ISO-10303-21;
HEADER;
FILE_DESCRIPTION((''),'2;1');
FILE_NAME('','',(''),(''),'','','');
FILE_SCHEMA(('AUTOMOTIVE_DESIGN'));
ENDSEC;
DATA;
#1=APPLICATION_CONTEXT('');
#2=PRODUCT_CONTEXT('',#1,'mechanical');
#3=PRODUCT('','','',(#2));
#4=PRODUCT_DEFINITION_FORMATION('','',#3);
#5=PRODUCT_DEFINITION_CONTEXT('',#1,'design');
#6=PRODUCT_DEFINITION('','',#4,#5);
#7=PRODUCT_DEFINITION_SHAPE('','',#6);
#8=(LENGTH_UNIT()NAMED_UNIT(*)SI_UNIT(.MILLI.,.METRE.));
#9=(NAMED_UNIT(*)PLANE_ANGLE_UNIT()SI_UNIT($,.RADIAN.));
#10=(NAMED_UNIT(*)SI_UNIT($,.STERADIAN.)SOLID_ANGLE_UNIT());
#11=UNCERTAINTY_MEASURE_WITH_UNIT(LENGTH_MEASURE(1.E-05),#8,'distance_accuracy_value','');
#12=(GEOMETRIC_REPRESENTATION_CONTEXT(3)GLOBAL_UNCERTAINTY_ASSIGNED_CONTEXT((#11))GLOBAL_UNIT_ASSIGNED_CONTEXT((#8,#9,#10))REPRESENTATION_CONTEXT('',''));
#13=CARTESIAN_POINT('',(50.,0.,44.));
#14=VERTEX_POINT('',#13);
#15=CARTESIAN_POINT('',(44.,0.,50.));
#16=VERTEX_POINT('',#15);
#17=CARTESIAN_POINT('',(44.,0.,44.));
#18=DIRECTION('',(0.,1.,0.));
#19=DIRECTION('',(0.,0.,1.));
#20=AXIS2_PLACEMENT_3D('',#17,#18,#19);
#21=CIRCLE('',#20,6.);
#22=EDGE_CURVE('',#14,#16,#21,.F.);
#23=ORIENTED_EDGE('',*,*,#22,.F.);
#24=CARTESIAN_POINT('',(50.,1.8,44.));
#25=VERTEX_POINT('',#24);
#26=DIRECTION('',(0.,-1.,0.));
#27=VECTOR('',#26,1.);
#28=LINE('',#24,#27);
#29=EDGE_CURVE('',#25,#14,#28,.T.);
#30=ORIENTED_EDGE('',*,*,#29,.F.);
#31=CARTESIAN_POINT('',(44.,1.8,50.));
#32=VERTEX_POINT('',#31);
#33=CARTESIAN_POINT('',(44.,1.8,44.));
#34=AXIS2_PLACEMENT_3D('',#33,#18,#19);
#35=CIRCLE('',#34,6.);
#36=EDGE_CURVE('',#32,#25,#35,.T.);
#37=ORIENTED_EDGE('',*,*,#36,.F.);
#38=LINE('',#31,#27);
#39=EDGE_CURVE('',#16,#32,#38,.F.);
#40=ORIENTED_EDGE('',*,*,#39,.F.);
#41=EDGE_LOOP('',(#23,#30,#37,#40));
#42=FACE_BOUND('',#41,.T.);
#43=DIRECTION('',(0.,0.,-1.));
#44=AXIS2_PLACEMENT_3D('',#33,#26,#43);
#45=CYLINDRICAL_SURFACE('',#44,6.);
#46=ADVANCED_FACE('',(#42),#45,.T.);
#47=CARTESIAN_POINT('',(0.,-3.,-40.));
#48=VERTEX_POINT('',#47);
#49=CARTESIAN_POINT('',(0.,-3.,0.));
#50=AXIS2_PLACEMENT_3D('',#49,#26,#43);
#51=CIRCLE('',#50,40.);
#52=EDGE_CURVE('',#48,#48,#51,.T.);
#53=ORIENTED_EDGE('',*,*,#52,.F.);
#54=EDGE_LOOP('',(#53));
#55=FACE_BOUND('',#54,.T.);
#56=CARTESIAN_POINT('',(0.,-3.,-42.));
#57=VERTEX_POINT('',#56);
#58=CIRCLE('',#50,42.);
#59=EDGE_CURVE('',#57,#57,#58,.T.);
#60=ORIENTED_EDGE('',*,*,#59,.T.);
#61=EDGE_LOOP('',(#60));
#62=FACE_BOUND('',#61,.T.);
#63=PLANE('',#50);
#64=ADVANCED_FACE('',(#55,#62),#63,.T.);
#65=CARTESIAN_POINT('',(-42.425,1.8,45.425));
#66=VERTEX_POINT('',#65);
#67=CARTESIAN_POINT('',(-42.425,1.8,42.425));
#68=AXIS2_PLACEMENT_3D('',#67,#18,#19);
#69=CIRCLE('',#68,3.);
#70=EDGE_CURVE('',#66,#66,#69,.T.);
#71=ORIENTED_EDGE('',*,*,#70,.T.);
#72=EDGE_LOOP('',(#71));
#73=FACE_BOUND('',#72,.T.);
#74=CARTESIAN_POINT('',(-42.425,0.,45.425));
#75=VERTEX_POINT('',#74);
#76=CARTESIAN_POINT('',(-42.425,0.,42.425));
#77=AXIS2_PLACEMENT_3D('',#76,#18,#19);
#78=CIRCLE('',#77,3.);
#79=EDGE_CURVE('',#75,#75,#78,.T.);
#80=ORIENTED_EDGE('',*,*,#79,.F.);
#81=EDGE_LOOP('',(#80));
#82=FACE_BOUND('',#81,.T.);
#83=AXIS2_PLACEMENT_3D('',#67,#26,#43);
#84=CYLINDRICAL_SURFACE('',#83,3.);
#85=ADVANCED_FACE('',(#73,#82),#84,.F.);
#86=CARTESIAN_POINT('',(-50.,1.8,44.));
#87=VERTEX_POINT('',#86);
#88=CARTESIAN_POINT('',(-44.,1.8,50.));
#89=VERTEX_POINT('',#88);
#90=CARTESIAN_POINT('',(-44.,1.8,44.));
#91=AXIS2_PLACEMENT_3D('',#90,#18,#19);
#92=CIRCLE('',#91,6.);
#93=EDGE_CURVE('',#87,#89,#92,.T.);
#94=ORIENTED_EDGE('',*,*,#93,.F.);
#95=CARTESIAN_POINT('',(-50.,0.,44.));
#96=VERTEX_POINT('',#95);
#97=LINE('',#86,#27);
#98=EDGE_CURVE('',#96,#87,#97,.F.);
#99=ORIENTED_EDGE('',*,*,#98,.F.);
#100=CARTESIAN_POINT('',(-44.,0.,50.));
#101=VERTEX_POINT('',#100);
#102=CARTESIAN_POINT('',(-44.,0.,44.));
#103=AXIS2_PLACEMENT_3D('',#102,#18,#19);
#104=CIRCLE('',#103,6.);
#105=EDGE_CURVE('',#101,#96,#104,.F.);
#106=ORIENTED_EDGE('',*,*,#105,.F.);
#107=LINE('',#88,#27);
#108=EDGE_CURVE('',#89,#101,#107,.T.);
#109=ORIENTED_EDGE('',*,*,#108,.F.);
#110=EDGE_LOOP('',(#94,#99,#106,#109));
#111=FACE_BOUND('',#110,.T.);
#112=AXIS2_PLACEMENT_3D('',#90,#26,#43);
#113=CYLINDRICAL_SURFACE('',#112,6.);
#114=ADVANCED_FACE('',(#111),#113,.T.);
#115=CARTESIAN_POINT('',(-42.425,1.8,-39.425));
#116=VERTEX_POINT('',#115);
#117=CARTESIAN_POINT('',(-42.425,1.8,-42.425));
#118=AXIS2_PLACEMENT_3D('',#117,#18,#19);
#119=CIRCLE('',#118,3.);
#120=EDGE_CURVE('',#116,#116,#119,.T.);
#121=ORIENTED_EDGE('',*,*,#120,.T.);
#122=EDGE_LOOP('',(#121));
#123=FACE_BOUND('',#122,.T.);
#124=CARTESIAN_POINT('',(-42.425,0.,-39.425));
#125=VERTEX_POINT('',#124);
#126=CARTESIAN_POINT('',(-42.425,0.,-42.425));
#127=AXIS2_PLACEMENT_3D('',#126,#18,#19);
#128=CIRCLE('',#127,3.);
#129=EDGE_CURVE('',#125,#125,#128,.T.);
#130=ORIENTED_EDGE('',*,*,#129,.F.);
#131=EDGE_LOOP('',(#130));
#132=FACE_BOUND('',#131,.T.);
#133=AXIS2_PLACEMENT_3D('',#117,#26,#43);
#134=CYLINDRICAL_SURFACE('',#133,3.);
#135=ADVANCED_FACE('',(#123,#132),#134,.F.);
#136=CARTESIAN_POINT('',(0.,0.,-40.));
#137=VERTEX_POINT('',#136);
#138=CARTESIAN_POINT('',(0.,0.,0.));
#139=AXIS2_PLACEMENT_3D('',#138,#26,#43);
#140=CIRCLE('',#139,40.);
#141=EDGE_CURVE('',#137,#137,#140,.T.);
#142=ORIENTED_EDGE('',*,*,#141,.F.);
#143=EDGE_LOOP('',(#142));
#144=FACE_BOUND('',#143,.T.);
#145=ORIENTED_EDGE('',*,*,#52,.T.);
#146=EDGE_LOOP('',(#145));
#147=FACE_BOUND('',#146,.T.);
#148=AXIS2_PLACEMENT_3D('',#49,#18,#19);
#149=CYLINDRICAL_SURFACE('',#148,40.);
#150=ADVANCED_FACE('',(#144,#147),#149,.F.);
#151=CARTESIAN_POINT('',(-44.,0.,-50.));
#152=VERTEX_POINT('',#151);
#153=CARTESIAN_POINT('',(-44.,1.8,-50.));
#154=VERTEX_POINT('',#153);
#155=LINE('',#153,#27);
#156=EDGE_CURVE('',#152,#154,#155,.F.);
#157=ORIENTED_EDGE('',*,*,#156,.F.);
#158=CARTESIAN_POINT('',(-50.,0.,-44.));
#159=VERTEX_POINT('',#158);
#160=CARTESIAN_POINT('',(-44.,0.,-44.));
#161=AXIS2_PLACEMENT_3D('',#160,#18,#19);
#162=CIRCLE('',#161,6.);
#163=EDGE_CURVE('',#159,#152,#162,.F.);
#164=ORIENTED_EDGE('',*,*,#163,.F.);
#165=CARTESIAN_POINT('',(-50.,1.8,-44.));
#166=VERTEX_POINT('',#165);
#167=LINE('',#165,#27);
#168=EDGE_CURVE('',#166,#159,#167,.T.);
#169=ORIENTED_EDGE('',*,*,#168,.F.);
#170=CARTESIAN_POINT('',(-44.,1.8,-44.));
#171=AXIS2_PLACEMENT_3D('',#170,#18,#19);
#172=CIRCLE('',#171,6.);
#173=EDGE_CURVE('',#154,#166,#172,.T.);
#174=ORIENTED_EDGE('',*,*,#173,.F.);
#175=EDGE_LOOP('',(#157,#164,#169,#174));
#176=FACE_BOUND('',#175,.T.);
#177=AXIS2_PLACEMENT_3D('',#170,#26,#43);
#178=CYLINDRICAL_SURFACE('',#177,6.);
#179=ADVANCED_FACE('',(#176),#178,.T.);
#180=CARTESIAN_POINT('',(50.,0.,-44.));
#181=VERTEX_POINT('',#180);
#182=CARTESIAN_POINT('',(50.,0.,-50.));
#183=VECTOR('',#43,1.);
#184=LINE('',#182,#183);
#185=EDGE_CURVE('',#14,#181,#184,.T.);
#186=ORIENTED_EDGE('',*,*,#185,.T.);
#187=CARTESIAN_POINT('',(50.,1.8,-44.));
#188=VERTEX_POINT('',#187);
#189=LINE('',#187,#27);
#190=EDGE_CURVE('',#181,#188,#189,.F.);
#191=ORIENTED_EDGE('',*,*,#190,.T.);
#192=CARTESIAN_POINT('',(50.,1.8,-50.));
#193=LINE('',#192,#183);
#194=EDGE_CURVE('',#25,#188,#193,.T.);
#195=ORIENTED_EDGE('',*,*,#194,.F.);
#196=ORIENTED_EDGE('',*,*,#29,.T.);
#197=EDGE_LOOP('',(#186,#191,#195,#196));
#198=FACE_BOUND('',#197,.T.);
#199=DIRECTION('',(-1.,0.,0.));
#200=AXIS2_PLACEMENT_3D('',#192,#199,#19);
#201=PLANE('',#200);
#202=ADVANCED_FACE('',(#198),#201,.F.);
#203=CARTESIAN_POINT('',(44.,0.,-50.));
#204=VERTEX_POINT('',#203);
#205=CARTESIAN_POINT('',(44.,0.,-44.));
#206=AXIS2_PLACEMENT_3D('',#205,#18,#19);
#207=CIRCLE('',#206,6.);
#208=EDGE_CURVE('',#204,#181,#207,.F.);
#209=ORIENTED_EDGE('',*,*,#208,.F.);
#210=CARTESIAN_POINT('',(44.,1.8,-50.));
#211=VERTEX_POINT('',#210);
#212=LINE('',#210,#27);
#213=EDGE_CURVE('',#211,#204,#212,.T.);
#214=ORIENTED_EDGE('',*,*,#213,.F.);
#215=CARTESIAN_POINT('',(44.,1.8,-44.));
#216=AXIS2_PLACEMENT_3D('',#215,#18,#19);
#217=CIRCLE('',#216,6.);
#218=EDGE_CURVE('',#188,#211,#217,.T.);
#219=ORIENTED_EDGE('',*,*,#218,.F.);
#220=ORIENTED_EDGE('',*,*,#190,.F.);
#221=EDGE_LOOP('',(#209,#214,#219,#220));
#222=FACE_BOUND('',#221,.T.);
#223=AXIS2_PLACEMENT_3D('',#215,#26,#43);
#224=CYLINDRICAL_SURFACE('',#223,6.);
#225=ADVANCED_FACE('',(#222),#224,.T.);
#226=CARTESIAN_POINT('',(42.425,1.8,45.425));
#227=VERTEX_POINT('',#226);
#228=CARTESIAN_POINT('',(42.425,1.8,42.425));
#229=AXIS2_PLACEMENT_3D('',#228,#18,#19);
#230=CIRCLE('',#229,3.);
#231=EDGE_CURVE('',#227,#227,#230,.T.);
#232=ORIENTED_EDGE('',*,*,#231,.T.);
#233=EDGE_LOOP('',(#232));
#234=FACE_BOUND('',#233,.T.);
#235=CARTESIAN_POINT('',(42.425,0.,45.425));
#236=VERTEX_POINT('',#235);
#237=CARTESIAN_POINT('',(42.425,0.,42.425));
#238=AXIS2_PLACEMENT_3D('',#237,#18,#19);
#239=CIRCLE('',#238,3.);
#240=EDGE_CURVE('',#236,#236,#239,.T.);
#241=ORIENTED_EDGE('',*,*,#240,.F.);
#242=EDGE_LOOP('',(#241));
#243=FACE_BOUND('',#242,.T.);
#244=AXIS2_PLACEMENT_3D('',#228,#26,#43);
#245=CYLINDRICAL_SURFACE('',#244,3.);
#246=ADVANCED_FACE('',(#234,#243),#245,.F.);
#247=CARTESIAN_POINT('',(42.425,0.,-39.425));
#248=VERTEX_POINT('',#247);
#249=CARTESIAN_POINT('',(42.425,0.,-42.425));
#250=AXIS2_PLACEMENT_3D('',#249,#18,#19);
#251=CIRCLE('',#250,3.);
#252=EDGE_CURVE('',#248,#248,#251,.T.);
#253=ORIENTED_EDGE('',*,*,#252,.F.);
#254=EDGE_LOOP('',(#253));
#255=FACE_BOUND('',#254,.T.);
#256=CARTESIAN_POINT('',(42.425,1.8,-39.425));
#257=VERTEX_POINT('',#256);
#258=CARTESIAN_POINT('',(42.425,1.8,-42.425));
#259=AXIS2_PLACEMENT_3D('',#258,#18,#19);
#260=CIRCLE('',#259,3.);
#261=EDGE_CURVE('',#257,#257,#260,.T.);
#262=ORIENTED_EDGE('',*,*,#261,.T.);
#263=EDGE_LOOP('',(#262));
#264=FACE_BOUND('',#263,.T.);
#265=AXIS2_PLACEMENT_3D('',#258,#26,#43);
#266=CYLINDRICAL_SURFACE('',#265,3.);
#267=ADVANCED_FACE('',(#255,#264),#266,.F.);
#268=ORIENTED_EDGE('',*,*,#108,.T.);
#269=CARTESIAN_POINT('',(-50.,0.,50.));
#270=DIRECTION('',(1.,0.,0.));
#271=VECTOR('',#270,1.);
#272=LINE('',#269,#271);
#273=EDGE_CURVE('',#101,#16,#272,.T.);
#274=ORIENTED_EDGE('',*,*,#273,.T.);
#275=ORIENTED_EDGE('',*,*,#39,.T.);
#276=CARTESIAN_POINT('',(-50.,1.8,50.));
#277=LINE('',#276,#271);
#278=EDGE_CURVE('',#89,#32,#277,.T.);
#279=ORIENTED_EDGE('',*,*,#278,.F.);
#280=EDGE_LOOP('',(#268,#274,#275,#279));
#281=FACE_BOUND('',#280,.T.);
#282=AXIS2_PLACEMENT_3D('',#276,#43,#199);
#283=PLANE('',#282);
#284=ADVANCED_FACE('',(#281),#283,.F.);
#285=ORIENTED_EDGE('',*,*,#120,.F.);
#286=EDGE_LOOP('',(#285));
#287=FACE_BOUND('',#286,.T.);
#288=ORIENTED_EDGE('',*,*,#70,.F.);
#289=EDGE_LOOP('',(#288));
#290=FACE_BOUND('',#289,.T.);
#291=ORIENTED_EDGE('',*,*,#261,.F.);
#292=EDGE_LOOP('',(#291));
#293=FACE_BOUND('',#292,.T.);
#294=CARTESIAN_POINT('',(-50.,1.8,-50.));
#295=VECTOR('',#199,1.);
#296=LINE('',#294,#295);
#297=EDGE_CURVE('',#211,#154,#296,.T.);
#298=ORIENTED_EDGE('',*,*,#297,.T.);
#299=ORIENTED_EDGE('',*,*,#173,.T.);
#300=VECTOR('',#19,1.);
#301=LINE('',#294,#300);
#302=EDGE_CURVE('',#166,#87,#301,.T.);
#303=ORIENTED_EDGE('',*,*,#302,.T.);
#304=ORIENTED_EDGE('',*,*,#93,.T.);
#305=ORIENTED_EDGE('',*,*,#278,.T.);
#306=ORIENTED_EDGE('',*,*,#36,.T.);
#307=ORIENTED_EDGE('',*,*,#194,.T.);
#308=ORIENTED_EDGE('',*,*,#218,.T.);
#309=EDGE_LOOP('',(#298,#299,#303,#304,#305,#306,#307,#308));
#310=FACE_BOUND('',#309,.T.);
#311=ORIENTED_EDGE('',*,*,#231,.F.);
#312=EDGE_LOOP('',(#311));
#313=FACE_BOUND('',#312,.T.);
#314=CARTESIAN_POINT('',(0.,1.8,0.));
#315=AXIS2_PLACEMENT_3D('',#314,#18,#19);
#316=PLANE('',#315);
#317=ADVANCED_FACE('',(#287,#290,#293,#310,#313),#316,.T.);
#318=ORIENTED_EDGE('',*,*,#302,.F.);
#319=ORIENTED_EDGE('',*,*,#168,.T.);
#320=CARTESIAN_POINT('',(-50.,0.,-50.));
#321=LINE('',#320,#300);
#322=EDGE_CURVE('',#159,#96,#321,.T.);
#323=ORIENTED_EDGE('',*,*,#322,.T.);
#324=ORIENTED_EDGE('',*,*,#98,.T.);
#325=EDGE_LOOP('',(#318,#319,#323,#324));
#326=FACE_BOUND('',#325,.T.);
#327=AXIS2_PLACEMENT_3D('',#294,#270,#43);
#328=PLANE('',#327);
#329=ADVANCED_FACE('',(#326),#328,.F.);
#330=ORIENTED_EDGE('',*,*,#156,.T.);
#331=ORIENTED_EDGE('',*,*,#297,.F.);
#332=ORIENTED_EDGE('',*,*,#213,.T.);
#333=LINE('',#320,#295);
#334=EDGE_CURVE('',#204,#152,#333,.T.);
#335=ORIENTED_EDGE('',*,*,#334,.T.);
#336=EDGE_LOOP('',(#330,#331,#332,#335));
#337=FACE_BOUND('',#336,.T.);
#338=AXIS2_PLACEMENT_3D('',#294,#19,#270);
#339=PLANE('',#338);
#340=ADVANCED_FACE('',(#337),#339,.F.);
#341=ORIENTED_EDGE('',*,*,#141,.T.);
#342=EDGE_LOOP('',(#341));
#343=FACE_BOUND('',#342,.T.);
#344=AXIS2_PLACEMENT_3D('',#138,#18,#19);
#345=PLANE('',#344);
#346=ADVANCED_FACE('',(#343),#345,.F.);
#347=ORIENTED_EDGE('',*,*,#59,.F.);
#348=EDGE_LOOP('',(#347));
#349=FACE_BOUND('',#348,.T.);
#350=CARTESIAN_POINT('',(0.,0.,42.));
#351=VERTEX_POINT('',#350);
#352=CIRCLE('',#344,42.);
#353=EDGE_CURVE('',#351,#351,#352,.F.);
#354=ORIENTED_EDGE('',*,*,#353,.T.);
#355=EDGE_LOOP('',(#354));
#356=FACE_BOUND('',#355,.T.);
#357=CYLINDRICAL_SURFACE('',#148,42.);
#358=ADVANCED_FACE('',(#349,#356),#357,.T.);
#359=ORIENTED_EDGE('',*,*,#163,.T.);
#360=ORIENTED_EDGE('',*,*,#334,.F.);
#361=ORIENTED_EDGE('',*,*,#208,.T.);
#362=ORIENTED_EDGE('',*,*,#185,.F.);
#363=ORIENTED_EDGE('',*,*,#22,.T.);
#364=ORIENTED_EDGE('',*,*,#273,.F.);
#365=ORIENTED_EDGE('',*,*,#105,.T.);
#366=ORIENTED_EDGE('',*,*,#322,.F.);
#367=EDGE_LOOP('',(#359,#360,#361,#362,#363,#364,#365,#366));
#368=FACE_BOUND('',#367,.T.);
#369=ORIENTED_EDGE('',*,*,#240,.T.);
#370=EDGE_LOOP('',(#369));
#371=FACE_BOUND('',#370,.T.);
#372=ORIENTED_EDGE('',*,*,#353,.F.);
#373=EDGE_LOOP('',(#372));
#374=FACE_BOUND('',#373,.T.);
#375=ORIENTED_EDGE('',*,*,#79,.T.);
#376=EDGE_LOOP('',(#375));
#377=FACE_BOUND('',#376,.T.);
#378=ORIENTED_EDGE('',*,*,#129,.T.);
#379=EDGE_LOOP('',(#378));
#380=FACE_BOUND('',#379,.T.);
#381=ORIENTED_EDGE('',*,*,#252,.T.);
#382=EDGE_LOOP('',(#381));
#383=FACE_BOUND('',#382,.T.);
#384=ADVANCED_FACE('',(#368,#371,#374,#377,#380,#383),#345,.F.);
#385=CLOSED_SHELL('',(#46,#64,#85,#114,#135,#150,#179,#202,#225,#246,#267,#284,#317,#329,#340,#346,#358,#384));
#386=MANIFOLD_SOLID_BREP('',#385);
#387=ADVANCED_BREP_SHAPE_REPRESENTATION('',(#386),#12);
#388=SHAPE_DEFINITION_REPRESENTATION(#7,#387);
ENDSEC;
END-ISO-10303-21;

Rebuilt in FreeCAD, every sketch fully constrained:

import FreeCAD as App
import Part
import Sketcher
from FreeCAD import Vector
Q = App.Units.Quantity


def edges_at(feature, points):
    """Names of the edges that pass closest to the given points."""
    edges = feature.Shape.Edges
    near = lambda p: min(range(len(edges)), key=lambda i: edges[i].distToShape(Part.Vertex(*p))[0])
    return sorted({f"Edge{near(p) + 1}" for p in points})


def add_polygon(sketch, points):
    """Adds a closed chain of lines whose ends are joined by coincident constraints."""
    first, n = sketch.GeometryCount, len(points)
    for a, b in zip(points, points[1:] + points[:1]):
        sketch.addGeometry(Part.LineSegment(App.Vector(*a, 0), App.Vector(*b, 0)), False)
    for i in range(n):
        sketch.addConstraint(Sketcher.Constraint("Coincident", first + i, 2, first + (i + 1) % n, 1))

doc = App.newDocument("Part")
body = doc.addObject("PartDesign::Body", "Body")

sketch1 = body.newObject("Sketcher::SketchObject", "Sketch")
sketch1.AttachmentSupport = (doc.getObject("XZ_Plane"), [""])
sketch1.MapMode = "FlatFace"
add_polygon(sketch1, [(-50, -50), (-50, 50), (50, 50), (50, -50)])
sketch1.addGeometry(Part.Circle(Vector(-42.4, 42.4, 0), Vector(0, 0, 1), 3), False)
sketch1.addGeometry(Part.Circle(Vector(42.4, 42.4, 0), Vector(0, 0, 1), 3), False)
sketch1.addGeometry(Part.Circle(Vector(-42.4, -42.4, 0), Vector(0, 0, 1), 3), False)
sketch1.addGeometry(Part.Circle(Vector(42.4, -42.4, 0), Vector(0, 0, 1), 3), False)
sketch1.addConstraint(Sketcher.Constraint("Vertical", 0))
sketch1.addConstraint(Sketcher.Constraint("Horizontal", 1))
sketch1.addConstraint(Sketcher.Constraint("Vertical", 2))
sketch1.addConstraint(Sketcher.Constraint("Horizontal", 3))
sketch1.addConstraint(Sketcher.Constraint("Equal", 4, 5))
sketch1.addConstraint(Sketcher.Constraint("Equal", 5, 6))
sketch1.addConstraint(Sketcher.Constraint("Equal", 6, 7))
sketch1.addConstraint(Sketcher.Constraint("Symmetric", 5, 3, 6, 3, -1, 1))
sketch1.addConstraint(Sketcher.Constraint("Symmetric", 4, 3, 7, 3, -1, 1))
sketch1.addConstraint(Sketcher.Constraint("Symmetric", 0, 2, 2, 2, -1, 1))
sketch1.addConstraint(Sketcher.Constraint("Symmetric", 4, 3, 5, 3, -2))
sketch1.addConstraint(Sketcher.Constraint("Equal", 3, 0))
sketch1.addConstraint(Sketcher.Constraint("Diameter", 4, Q("6 mm")))
sketch1.addConstraint(Sketcher.Constraint("DistanceX", 1, 1, 1, 2, Q("100 mm")))
sketch1.addConstraint(Sketcher.Constraint("DistanceX", 4, 3, 5, 3, Q("84.85 mm")))
sketch1.addConstraint(Sketcher.Constraint("DistanceY", 6, 3, 4, 3, Q("84.85 mm")))
pad1 = body.newObject("PartDesign::Pad", "Pad")
pad1.Profile = sketch1
pad1.Length = 1.8
pad1.Reversed = True
doc.recompute()

fillet = body.newObject("PartDesign::Fillet", "Fillet")
fillet.Base = (pad1, edges_at(pad1, [
    (50, 0.9, 50),
    (-50, 0.9, 50),
    (-50, 0.9, -50),
    (50, 0.9, -50),
]))
fillet.Radius = 6

sketch2 = body.newObject("Sketcher::SketchObject", "Sketch001")
sketch2.AttachmentSupport = (doc.getObject("XZ_Plane"), [""])
sketch2.MapMode = "FlatFace"
sketch2.addGeometry(Part.Circle(Vector(0, 0, 0), Vector(0, 0, 1), 42), False)
sketch2.addGeometry(Part.Circle(Vector(0, 0, 0), Vector(0, 0, 1), 40), False)
sketch2.addConstraint(Sketcher.Constraint("Coincident", 0, 3, -1, 1))
sketch2.addConstraint(Sketcher.Constraint("Coincident", 1, 3, -1, 1))
sketch2.addConstraint(Sketcher.Constraint("Diameter", 0, Q("84 mm")))
sketch2.addConstraint(Sketcher.Constraint("Diameter", 1, Q("80 mm")))
pad2 = body.newObject("PartDesign::Pad", "Pad001")
pad2.Profile = sketch2
pad2.Length = 3

doc.recompute()
